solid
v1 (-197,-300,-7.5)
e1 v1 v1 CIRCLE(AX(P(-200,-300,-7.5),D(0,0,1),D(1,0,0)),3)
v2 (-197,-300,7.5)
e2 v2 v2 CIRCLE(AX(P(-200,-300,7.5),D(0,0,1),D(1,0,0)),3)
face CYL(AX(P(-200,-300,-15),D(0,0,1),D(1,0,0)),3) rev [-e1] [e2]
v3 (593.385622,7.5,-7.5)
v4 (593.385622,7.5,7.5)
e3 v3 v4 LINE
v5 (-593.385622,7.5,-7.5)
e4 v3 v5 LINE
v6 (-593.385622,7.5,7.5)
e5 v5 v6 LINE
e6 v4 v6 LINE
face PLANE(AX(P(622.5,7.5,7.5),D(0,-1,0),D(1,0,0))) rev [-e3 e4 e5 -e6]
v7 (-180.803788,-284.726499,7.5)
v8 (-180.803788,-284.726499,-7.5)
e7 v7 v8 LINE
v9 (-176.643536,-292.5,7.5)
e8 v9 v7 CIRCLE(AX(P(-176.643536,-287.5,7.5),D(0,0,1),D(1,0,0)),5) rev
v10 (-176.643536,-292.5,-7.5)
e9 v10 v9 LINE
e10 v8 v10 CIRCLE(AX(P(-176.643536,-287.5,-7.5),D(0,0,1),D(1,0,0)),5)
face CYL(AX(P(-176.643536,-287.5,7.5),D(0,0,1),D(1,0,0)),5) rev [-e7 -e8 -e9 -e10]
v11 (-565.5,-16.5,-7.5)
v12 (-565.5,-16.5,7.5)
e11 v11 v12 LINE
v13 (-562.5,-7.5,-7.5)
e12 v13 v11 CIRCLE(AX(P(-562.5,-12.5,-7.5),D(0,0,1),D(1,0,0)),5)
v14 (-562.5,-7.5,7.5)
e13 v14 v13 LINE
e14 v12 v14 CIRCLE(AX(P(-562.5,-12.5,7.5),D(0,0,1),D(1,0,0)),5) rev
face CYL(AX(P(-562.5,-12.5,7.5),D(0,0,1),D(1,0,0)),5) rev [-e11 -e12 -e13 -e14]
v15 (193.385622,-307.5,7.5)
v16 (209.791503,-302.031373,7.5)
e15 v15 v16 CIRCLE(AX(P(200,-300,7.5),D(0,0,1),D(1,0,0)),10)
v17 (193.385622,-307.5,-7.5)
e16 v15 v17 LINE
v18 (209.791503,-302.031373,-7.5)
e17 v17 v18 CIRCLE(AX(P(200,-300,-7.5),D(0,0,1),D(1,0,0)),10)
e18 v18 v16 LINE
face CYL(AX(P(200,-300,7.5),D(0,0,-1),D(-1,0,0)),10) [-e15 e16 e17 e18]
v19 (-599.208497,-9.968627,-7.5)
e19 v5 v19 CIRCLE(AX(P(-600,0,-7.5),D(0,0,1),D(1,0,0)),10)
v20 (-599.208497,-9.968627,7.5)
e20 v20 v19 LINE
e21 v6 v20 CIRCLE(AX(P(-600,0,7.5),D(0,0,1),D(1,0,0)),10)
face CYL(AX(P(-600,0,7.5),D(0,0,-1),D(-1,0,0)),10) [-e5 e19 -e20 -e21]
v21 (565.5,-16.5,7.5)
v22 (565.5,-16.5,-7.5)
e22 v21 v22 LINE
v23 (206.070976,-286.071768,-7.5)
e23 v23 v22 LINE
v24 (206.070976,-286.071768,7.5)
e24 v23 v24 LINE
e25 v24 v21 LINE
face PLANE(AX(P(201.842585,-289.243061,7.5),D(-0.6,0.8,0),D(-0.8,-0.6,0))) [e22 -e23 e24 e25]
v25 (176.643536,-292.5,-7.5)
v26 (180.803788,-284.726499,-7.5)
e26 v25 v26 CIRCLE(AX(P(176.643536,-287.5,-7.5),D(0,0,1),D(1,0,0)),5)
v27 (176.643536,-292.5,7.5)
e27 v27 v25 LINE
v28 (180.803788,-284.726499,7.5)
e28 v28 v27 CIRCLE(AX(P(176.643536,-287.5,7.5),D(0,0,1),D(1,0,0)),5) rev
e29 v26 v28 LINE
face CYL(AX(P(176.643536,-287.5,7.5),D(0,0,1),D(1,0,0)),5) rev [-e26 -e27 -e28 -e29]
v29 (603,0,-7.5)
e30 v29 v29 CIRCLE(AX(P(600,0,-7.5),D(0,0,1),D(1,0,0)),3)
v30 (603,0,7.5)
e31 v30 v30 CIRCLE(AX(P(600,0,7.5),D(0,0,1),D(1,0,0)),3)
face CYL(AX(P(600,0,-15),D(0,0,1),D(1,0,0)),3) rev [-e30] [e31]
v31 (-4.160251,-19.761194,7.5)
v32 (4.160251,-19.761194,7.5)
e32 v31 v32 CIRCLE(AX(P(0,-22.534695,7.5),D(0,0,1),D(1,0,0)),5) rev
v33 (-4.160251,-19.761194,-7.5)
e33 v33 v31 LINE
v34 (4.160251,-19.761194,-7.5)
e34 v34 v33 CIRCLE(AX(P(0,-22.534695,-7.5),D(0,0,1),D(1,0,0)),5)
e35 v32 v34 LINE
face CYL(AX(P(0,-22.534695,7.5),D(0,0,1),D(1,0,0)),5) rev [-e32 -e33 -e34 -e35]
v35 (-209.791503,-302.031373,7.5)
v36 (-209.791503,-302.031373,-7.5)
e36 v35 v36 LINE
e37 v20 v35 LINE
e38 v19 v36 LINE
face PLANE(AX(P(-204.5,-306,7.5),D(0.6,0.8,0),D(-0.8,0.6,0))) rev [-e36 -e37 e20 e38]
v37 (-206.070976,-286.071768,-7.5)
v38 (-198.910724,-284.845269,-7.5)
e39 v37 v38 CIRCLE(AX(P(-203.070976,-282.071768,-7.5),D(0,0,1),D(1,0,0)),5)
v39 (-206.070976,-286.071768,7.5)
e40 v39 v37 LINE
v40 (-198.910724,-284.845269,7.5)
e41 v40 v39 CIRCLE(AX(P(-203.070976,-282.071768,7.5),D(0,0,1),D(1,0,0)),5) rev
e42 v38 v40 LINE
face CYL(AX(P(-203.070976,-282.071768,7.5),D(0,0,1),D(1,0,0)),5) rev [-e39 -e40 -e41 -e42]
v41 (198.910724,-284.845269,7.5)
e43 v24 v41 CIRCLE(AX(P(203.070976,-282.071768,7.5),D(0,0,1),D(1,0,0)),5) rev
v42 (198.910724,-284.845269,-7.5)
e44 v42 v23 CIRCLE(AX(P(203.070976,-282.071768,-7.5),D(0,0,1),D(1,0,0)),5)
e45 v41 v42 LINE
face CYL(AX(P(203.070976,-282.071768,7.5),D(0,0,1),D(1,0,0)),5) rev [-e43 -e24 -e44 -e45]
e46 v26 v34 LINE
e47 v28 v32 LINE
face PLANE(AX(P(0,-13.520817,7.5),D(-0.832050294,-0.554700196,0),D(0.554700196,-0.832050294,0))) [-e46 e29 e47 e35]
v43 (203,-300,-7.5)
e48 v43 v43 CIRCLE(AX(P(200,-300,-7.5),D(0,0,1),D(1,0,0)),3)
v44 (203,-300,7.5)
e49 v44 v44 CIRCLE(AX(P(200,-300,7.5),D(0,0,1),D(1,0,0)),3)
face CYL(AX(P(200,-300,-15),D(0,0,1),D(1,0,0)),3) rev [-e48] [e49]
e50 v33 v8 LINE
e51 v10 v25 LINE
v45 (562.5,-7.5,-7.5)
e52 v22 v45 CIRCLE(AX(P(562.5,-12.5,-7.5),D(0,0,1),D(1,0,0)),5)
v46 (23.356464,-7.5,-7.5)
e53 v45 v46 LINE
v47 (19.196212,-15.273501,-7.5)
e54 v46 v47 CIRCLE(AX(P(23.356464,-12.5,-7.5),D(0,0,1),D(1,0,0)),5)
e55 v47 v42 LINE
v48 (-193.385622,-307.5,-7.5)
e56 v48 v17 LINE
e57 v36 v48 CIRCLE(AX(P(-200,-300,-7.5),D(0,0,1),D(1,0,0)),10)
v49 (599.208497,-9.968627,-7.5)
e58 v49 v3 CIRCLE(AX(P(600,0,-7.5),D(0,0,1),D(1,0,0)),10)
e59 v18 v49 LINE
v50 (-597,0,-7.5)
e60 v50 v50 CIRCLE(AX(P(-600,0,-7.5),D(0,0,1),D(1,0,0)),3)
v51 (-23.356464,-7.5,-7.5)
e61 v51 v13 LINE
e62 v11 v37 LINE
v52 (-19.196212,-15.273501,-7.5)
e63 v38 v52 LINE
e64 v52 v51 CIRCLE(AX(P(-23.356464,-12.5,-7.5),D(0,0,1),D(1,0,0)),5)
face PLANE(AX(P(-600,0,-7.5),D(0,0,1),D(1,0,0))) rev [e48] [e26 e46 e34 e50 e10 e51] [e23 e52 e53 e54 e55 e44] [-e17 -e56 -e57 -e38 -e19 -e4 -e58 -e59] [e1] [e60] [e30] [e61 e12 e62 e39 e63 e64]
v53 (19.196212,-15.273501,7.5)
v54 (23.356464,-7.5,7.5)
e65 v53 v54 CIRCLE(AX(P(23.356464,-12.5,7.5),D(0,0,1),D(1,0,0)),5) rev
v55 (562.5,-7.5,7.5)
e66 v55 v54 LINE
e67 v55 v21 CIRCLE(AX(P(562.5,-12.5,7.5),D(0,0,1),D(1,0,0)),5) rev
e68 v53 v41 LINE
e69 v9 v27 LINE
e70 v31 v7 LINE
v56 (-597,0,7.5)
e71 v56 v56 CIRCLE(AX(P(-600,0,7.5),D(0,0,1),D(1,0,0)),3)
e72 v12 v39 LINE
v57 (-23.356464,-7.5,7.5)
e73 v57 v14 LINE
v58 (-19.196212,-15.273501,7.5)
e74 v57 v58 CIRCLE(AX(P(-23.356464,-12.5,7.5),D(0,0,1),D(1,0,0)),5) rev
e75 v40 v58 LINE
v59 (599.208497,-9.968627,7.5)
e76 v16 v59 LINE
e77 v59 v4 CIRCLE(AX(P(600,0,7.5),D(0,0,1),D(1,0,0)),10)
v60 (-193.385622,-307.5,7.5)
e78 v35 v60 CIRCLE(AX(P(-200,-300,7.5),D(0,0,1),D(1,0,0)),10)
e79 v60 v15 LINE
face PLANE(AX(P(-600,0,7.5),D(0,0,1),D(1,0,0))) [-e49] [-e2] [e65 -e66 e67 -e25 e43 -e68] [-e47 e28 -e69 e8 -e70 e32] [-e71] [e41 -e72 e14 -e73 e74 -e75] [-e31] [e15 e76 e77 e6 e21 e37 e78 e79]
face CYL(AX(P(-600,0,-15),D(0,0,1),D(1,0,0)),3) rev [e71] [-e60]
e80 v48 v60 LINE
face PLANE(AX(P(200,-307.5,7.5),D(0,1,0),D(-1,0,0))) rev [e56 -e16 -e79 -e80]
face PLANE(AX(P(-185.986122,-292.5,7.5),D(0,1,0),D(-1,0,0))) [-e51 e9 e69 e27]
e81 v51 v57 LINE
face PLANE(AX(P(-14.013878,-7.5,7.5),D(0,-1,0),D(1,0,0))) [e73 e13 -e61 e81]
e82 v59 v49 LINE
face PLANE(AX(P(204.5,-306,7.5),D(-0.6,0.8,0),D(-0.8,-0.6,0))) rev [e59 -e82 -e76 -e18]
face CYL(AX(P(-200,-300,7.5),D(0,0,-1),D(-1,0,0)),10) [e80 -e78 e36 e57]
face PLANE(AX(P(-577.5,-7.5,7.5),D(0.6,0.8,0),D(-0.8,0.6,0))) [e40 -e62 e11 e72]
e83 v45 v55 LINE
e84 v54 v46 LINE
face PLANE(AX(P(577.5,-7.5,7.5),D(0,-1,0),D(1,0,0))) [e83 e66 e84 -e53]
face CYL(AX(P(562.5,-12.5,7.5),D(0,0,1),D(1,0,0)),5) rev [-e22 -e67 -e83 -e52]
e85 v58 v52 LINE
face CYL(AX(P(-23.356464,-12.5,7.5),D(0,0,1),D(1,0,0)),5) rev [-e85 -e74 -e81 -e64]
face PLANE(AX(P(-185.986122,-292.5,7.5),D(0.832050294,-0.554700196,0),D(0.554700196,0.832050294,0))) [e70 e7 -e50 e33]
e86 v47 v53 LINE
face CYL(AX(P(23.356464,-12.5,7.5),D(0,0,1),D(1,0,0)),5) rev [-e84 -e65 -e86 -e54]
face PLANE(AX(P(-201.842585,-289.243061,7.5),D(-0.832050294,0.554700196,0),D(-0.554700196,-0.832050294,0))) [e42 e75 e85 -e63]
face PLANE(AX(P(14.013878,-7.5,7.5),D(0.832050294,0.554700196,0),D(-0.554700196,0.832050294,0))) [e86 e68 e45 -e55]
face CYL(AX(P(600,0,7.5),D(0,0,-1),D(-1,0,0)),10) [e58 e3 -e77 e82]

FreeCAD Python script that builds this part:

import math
import FreeCAD as App
import Part
import Sketcher
from FreeCAD import Vector
Q = App.Units.Quantity


def edges_at(feature, points):
    """Names of the edges that pass closest to the given points."""
    edges = feature.Shape.Edges
    near = lambda p: min(range(len(edges)), key=lambda i: edges[i].distToShape(Part.Vertex(*p))[0])
    return sorted({f"Edge{near(p) + 1}" for p in points})

doc = App.newDocument("Part")
params = doc.addObject("Spreadsheet::Sheet", "Params")
for row, (alias, value) in enumerate([
    ("sketch1_diameter", "20 mm"),
    ("sketch1_diameter2", "6 mm"),
    ("pad1_length", "15 mm"),
    ("sketch2_diameter", "20 mm"),
    ("sketch2_diameter2", "6 mm"),
    ("pad2_length", "15 mm"),
    ("sketch3_diameter", "20 mm"),
    ("sketch3_diameter2", "6 mm"),
    ("pad3_length", "15 mm"),
    ("sketch4_diameter", "20 mm"),
    ("sketch4_diameter2", "6 mm"),
    ("pad4_length", "15 mm"),
    ("sketch5_width", "1245 mm"),
    ("sketch5_width2", "405 mm"),
    ("sketch5_length", "525 mm"),
    ("pad5_length", "15 mm"),
    ("sketch6_diameter", "6 mm"),
    ("sketch6_radius", "10 mm"),
    ("pocket1_length", "30 mm"),
    ("fillet_radius", "5 mm"),
], start=1):
    params.set(f"A{row}", alias)
    params.set(f"B{row}", "=" + value)
    params.setAlias(f"B{row}", alias)

body = doc.addObject("PartDesign::Body", "Body")

# Sketch on XY plane
sketch1 = body.newObject("Sketcher::SketchObject", "Sketch")
sketch1.AttachmentSupport = (doc.getObject("XY_Plane"), [""])
sketch1.MapMode = "FlatFace"
sketch1.addGeometry([
    Part.Circle(Vector(-600, 0, 0), Vector(0, 0, 1), 10),
    Part.Circle(Vector(-600, 0, 0), Vector(0, 0, 1), 3),
], False)
sketch1.addConstraint([
    Sketcher.Constraint("Coincident", 1, 3, 0, 3),
    Sketcher.Constraint("PointOnObject", 0, 3, -1),
    Sketcher.Constraint("Diameter", 0, Q("20 mm")),
    Sketcher.Constraint("Diameter", 1, Q("6 mm")),
    Sketcher.Constraint("DistanceX", 0, 3, -1, 1, Q("600 mm")),
])
sketch1.setExpression("Constraints[2]", "Params.sketch1_diameter")
sketch1.setExpression("Constraints[3]", "Params.sketch1_diameter2")
pad1 = body.newObject("PartDesign::Pad", "Pad")
pad1.Profile = sketch1
pad1.setExpression("Length", "Params.pad1_length")
pad1.Midplane = True
body2 = doc.addObject("PartDesign::Body", "Body001")

# Sketch on XY plane
sketch2 = body2.newObject("Sketcher::SketchObject", "Sketch001")
sketch2.AttachmentSupport = (doc.getObject("XY_Plane001"), [""])
sketch2.MapMode = "FlatFace"
sketch2.addGeometry([
    Part.Circle(Vector(-200, -300, 0), Vector(0, 0, 1), 10),
    Part.Circle(Vector(-200, -300, 0), Vector(0, 0, 1), 3),
], False)
sketch2.addConstraint([
    Sketcher.Constraint("Coincident", 1, 3, 0, 3),
    Sketcher.Constraint("Diameter", 0, Q("20 mm")),
    Sketcher.Constraint("Diameter", 1, Q("6 mm")),
    Sketcher.Constraint("DistanceX", 0, 3, -1, 1, Q("200 mm")),
    Sketcher.Constraint("DistanceY", 0, 3, -1, 1, Q("300 mm")),
])
sketch2.setExpression("Constraints[1]", "Params.sketch2_diameter")
sketch2.setExpression("Constraints[2]", "Params.sketch2_diameter2")
pad2 = body2.newObject("PartDesign::Pad", "Pad001")
pad2.Profile = sketch2
pad2.setExpression("Length", "Params.pad2_length")
pad2.Midplane = True
body3 = doc.addObject("PartDesign::Body", "Body002")

# Sketch on XY plane
sketch3 = body3.newObject("Sketcher::SketchObject", "Sketch002")
sketch3.AttachmentSupport = (doc.getObject("XY_Plane002"), [""])
sketch3.MapMode = "FlatFace"
sketch3.addGeometry([
    Part.Circle(Vector(200, -300, 0), Vector(0, 0, 1), 10),
    Part.Circle(Vector(200, -300, 0), Vector(0, 0, 1), 3),
], False)
sketch3.addConstraint([
    Sketcher.Constraint("Coincident", 1, 3, 0, 3),
    Sketcher.Constraint("Diameter", 0, Q("20 mm")),
    Sketcher.Constraint("Diameter", 1, Q("6 mm")),
    Sketcher.Constraint("DistanceX", -1, 1, 0, 3, Q("200 mm")),
    Sketcher.Constraint("DistanceY", 0, 3, -1, 1, Q("300 mm")),
])
sketch3.setExpression("Constraints[1]", "Params.sketch3_diameter")
sketch3.setExpression("Constraints[2]", "Params.sketch3_diameter2")
pad3 = body3.newObject("PartDesign::Pad", "Pad002")
pad3.Profile = sketch3
pad3.setExpression("Length", "Params.pad3_length")
pad3.Midplane = True
body4 = doc.addObject("PartDesign::Body", "Body003")

# Sketch on XY plane
sketch4 = body4.newObject("Sketcher::SketchObject", "Sketch003")
sketch4.AttachmentSupport = (doc.getObject("XY_Plane003"), [""])
sketch4.MapMode = "FlatFace"
sketch4.addGeometry([
    Part.Circle(Vector(600, 0, 0), Vector(0, 0, 1), 10),
    Part.Circle(Vector(600, 0, 0), Vector(0, 0, 1), 3),
], False)
sketch4.addConstraint([
    Sketcher.Constraint("Coincident", 1, 3, 0, 3),
    Sketcher.Constraint("PointOnObject", 0, 3, -1),
    Sketcher.Constraint("Diameter", 0, Q("20 mm")),
    Sketcher.Constraint("Diameter", 1, Q("6 mm")),
    Sketcher.Constraint("DistanceX", -1, 1, 0, 3, Q("600 mm")),
])
sketch4.setExpression("Constraints[2]", "Params.sketch4_diameter")
sketch4.setExpression("Constraints[3]", "Params.sketch4_diameter2")
pad4 = body4.newObject("PartDesign::Pad", "Pad003")
pad4.Profile = sketch4
pad4.setExpression("Length", "Params.pad4_length")
pad4.Midplane = True
body.AllowCompound = True
doc.recompute()

boolean = body.newObject("PartDesign::Boolean", "Boolean")
boolean.Type = "Fuse"
boolean.addObjects([body2])
doc.recompute()

boolean2 = body.newObject("PartDesign::Boolean", "Boolean001")
boolean2.Type = "Fuse"
boolean2.addObjects([body3])
doc.recompute()

boolean3 = body.newObject("PartDesign::Boolean", "Boolean002")
boolean3.Type = "Fuse"
boolean3.addObjects([body4])

# Sketch on XY plane
sketch5 = body.newObject("Sketcher::SketchObject", "Sketch004")
sketch5.AttachmentSupport = (doc.getObject("XY_Plane"), [""])
sketch5.MapMode = "FlatFace"
sketch5.addGeometry([
    Part.LineSegment(Vector(202, -308, 0), Vector(622, 8, 0)),  # 0
    Part.LineSegment(Vector(622, 8, 0), Vector(-622, 8, 0)),  # 1
    Part.LineSegment(Vector(-622, 8, 0), Vector(-202, -308, 0)),  # 2
    Part.LineSegment(Vector(-202, -308, 0), Vector(202, -308, 0)),  # 3
    Part.LineSegment(Vector(186, -292, 0), Vector(-186, -292, 0)),  # 4
    Part.LineSegment(Vector(-186, -292, 0), Vector(0, -14, 0)),  # 5
    Part.LineSegment(Vector(0, -14, 0), Vector(186, -292, 0)),  # 6
    Part.LineSegment(Vector(-202, -289, 0), Vector(-578, -8, 0)),  # 7
    Part.LineSegment(Vector(-578, -8, 0), Vector(-14, -8, 0)),  # 8
    Part.LineSegment(Vector(-14, -8, 0), Vector(-202, -289, 0)),  # 9
    Part.LineSegment(Vector(578, -8, 0), Vector(202, -289, 0)),  # 10
    Part.LineSegment(Vector(202, -289, 0), Vector(14, -8, 0)),  # 11
    Part.LineSegment(Vector(14, -8, 0), Vector(578, -8, 0)),  # 12
], False)
sketch5.addConstraint([
    Sketcher.Constraint("Coincident", 0, 2, 1, 1),
    Sketcher.Constraint("Coincident", 1, 2, 2, 1),
    Sketcher.Constraint("Coincident", 2, 2, 3, 1),
    Sketcher.Constraint("Coincident", 3, 2, 0, 1),
    Sketcher.Constraint("Coincident", 4, 2, 5, 1),
    Sketcher.Constraint("Coincident", 5, 2, 6, 1),
    Sketcher.Constraint("Coincident", 6, 2, 4, 1),
    Sketcher.Constraint("Coincident", 7, 2, 8, 1),
    Sketcher.Constraint("Coincident", 8, 2, 9, 1),
    Sketcher.Constraint("Coincident", 9, 2, 7, 1),
    Sketcher.Constraint("Coincident", 10, 2, 11, 1),
    Sketcher.Constraint("Coincident", 11, 2, 12, 1),
    Sketcher.Constraint("Coincident", 12, 2, 10, 1),
    Sketcher.Constraint("Horizontal", 1),
    Sketcher.Constraint("Horizontal", 3),
    Sketcher.Constraint("Horizontal", 4),
    Sketcher.Constraint("Horizontal", 8),
    Sketcher.Constraint("Horizontal", 12),
    Sketcher.Constraint("Symmetric", 9, 2, 10, 2, -2),
    Sketcher.Constraint("Symmetric", 8, 2, 11, 2, -2),
    Sketcher.Constraint("PointOnObject", 5, 2, -2),
    Sketcher.Constraint("Parallel", 2, 7),
    Sketcher.Constraint("Parallel", 5, 9),
    Sketcher.Constraint("Parallel", 0, 10),
    Sketcher.Constraint("Parallel", 6, 11),
    Sketcher.Constraint("Equal", 8, 12),
    Sketcher.Constraint("DistanceX", 1, 2, 1, 1, Q("1245 mm")),
    Sketcher.Constraint("DistanceX", 3, 1, 3, 2, Q("405 mm")),
    Sketcher.Constraint("Distance", 0, Q("525 mm")),
    Sketcher.Constraint("DistanceY", 2, 2, 4, 2, Q("15 mm")),
    Sketcher.Constraint("DistanceX", 1, 2, 7, 2, Q("45 mm")),
    Sketcher.Constraint("DistanceY", 7, 2, 1, 2, Q("15 mm")),
    Sketcher.Constraint("DistanceX", 8, 2, 6, 2, Q("200 mm")),
    Sketcher.Constraint("DistanceX", 12, 2, 0, 2, Q("45 mm")),
    Sketcher.Constraint("DistanceY", -1, 1, 0, 2, Q("7.5 mm")),
    Sketcher.Constraint("DistanceX", 8, 1, 8, 2, Q("563.486122 mm")),
    Sketcher.Constraint("Distance", 5, Q("335.291249 mm")),
])
sketch5.setExpression("Constraints[26]", "Params.sketch5_width")
sketch5.setExpression("Constraints[27]", "Params.sketch5_width2")
sketch5.setExpression("Constraints[28]", "Params.sketch5_length")
pad5 = body.newObject("PartDesign::Pad", "Pad004")
pad5.Profile = sketch5
pad5.setExpression("Length", "Params.pad5_length")
pad5.Midplane = True

# Sketch on XY plane
sketch6 = body.newObject("Sketcher::SketchObject", "Sketch005")
sketch6.AttachmentSupport = (doc.getObject("XY_Plane"), [""])
sketch6.MapMode = "FlatFace"
sketch6.addGeometry([
    Part.Circle(Vector(-600, 0, 0), Vector(0, 0, 1), 3),  # 0
    Part.Circle(Vector(-200, -300, 0), Vector(0, 0, 1), 3),  # 1
    Part.Circle(Vector(200, -300, 0), Vector(0, 0, 1), 3),  # 2
    Part.Circle(Vector(600, 0, 0), Vector(0, 0, 1), 3),  # 3
    Part.LineSegment(Vector(623.7, 10.9, 0), Vector(605.8, 8.2, 0)),  # 4
    Part.ArcOfCircle(Part.Circle(Vector(600, 0, 0), Vector(0, 0, 1), 10), math.radians(-19), math.radians(55)),  # 5
    Part.LineSegment(Vector(609.5, -3.2, 0), Vector(625.3, -4.2, 0)),  # 6
    Part.LineSegment(Vector(625.3, -4.2, 0), Vector(623.7, 10.9, 0)),  # 7
    Part.LineSegment(Vector(-625.3, -4.2, 0), Vector(-609.5, -3.2, 0)),  # 8
    Part.ArcOfCircle(Part.Circle(Vector(-600, 0, 0), Vector(0, 0, 1), 10), math.radians(125), math.radians(199)),  # 9
    Part.LineSegment(Vector(-605.8, 8.2, 0), Vector(-623.7, 10.9, 0)),  # 10
    Part.LineSegment(Vector(-623.7, 10.9, 0), Vector(-625.3, -4.2, 0)),  # 11
], False)
sketch6.addConstraint([
    Sketcher.Constraint("Coincident", 4, 2, 5, 2),
    Sketcher.Constraint("Coincident", 5, 1, 6, 1),
    Sketcher.Constraint("Coincident", 6, 2, 7, 1),
    Sketcher.Constraint("Coincident", 7, 2, 4, 1),
    Sketcher.Constraint("Coincident", 8, 2, 9, 2),
    Sketcher.Constraint("Coincident", 9, 1, 10, 1),
    Sketcher.Constraint("Coincident", 10, 2, 11, 1),
    Sketcher.Constraint("Coincident", 11, 2, 8, 1),
    Sketcher.Constraint("Coincident", 5, 3, 3, 3),
    Sketcher.Constraint("Coincident", 9, 3, 0, 3),
    Sketcher.Constraint("Equal", 0, 1),
    Sketcher.Constraint("Equal", 1, 2),
    Sketcher.Constraint("Equal", 2, 3),
    Sketcher.Constraint("Equal", 5, 9),
    Sketcher.Constraint("Symmetric", 0, 3, 3, 3, -1, 1),
    Sketcher.Constraint("Symmetric", 1, 3, 2, 3, -2),
    Sketcher.Constraint("Symmetric", 5, 1, 8, 2, -2),
    Sketcher.Constraint("Symmetric", 7, 2, 10, 2, -2),
    Sketcher.Constraint("Symmetric", 6, 2, 11, 2, -2),
    Sketcher.Constraint("Horizontal", 4, 2, 9, 1),
    Sketcher.Constraint("Diameter", 0, Q("6 mm")),
    Sketcher.Constraint("Radius", 5, Q("10 mm")),
    Sketcher.Constraint("DistanceX", 0, 3, -1, 1, Q("600 mm")),
    Sketcher.Constraint("DistanceX", 1, 3, -1, 1, Q("200 mm")),
    Sketcher.Constraint("DistanceY", 1, 3, -1, 1, Q("300 mm")),
    Sketcher.Constraint("Distance", 6, Q("15.849199 mm")),
    Sketcher.Constraint("Distance", 7, Q("15.200089 mm")),
    Sketcher.Constraint("DistanceY", 5, 1, -1, 1, Q("3.215951 mm")),
    Sketcher.Constraint("DistanceX", -1, 1, 6, 2, Q("625.286418 mm")),
    Sketcher.Constraint("DistanceX", -1, 1, 7, 2, Q("623.676739 mm")),
    Sketcher.Constraint("DistanceX", 4, 2, 5, 1, Q("3.69636 mm")),
])
sketch6.setExpression("Constraints[20]", "Params.sketch6_diameter")
sketch6.setExpression("Constraints[21]", "Params.sketch6_radius")
pocket1 = body.newObject("PartDesign::Pocket", "Pocket")
pocket1.Profile = sketch6
pocket1.setExpression("Length", "Params.pocket1_length")
pocket1.Midplane = True
doc.recompute()

fillet = body.newObject("PartDesign::Fillet", "Fillet")
fillet.Base = (pocket1, edges_at(pocket1, [
    (0, -13.521, 0),
    (-185.986, -292.5, 0),
    (185.986, -292.5, 0),
    (14.014, -7.5, 0),
    (201.843, -289.243, 0),
    (577.5, -7.5, 0),
    (-577.5, -7.5, 0),
    (-201.843, -289.243, 0),
    (-14.014, -7.5, 0),
]))
fillet.setExpression("Radius", "Params.fillet_radius")

doc.recompute()
